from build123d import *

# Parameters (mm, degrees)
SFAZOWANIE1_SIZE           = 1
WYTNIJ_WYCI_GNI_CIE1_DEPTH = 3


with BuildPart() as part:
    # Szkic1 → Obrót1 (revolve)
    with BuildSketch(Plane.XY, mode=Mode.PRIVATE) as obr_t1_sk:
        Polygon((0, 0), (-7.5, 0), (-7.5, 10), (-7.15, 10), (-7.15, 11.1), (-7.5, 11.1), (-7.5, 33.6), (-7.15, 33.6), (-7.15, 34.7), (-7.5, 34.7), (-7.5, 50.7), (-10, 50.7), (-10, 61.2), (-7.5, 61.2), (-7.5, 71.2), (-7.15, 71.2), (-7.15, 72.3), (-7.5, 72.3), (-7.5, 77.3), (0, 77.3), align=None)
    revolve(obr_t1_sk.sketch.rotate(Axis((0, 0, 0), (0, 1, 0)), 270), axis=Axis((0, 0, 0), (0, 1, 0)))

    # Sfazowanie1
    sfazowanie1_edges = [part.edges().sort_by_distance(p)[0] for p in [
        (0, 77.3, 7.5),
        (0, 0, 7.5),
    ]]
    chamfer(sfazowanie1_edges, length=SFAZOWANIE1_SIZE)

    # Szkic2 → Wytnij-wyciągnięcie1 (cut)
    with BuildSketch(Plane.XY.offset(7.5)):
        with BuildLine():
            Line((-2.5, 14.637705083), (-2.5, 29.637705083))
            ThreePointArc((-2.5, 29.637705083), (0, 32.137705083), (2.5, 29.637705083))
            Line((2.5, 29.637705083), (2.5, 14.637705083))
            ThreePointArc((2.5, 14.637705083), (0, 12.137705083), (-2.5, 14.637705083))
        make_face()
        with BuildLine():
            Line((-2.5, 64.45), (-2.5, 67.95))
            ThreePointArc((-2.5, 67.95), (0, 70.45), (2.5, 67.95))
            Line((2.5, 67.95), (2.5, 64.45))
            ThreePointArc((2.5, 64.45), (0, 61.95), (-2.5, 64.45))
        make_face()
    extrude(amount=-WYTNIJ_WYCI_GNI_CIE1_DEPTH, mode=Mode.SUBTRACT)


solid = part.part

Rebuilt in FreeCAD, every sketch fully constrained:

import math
import FreeCAD as App
import Part
import Sketcher

V = App.Vector


def edges_at(feature, points):
    """Names of the edges that pass closest to the given points."""
    edges = feature.Shape.Edges
    near = lambda p: min(range(len(edges)), key=lambda i: edges[i].distToShape(Part.Vertex(*p))[0])
    return sorted({f"Edge{near(p) + 1}" for p in points})

doc = App.newDocument("Part")
params = doc.addObject("Spreadsheet::Sheet", "Params")
for row, (alias, value) in enumerate([
    ("sketch1_height", "5 mm"),
    ("sketch1_height2", "10 mm"),
    ("sketch1_height3", "16 mm"),
    ("sketch1_width", "7.5 mm"),
    ("sketch1_width2", "2.5 mm"),
    ("revolution_angle", "360 deg"),
    ("chamfer_size", "1 mm"),
    ("sketch2_radius", "2.5 mm"),
    ("sketch2_height", "15 mm"),
    ("sketch2_height2", "3.5 mm"),
    ("pocket1_length", "3 mm"),
], start=1):
    params.set(f"A{row}", alias)
    params.set(f"B{row}", "=" + value)
    params.setAlias(f"B{row}", alias)

body = doc.addObject("PartDesign::Body", "Body")

# Sketch on XY plane
sketch1 = body.newObject("Sketcher::SketchObject", "Sketch")
sketch1.AttachmentSupport = (doc.getObject("XY_Plane"), [""])
sketch1.MapMode = "FlatFace"
sketch1.addGeometry([
    Part.LineSegment(V(-7.5, 0, 0), V(0, 0, 0)),  # 0
    Part.LineSegment(V(0, 0, 0), V(0, 77.3, 0)),  # 1
    Part.LineSegment(V(0, 77.3, 0), V(-7.5, 77.3, 0)),  # 2
    Part.LineSegment(V(-7.5, 77.3, 0), V(-7.5, 72.3, 0)),  # 3
    Part.LineSegment(V(-7.5, 72.3, 0), V(-7.15, 72.3, 0)),  # 4
    Part.LineSegment(V(-7.15, 72.3, 0), V(-7.15, 71.2, 0)),  # 5
    Part.LineSegment(V(-7.15, 71.2, 0), V(-7.5, 71.2, 0)),  # 6
    Part.LineSegment(V(-7.5, 71.2, 0), V(-7.5, 61.2, 0)),  # 7
    Part.LineSegment(V(-7.5, 61.2, 0), V(-10, 61.2, 0)),  # 8
    Part.LineSegment(V(-10, 61.2, 0), V(-10, 50.7, 0)),  # 9
    Part.LineSegment(V(-10, 50.7, 0), V(-7.5, 50.7, 0)),  # 10
    Part.LineSegment(V(-7.5, 50.7, 0), V(-7.5, 34.7, 0)),  # 11
    Part.LineSegment(V(-7.5, 34.7, 0), V(-7.15, 34.7, 0)),  # 12
    Part.LineSegment(V(-7.15, 34.7, 0), V(-7.15, 33.6, 0)),  # 13
    Part.LineSegment(V(-7.15, 33.6, 0), V(-7.5, 33.6, 0)),  # 14
    Part.LineSegment(V(-7.5, 33.6, 0), V(-7.5, 11.1, 0)),  # 15
    Part.LineSegment(V(-7.5, 11.1, 0), V(-7.15, 11.1, 0)),  # 16
    Part.LineSegment(V(-7.15, 11.1, 0), V(-7.15, 10, 0)),  # 17
    Part.LineSegment(V(-7.15, 10, 0), V(-7.5, 10, 0)),  # 18
    Part.LineSegment(V(-7.5, 10, 0), V(-7.5, 0, 0)),  # 19
], False)
sketch1.addConstraint([
    Sketcher.Constraint("Coincident", 0, 2, 1, 1),
    Sketcher.Constraint("Coincident", 1, 2, 2, 1),
    Sketcher.Constraint("Coincident", 2, 2, 3, 1),
    Sketcher.Constraint("Coincident", 3, 2, 4, 1),
    Sketcher.Constraint("Coincident", 4, 2, 5, 1),
    Sketcher.Constraint("Coincident", 5, 2, 6, 1),
    Sketcher.Constraint("Coincident", 6, 2, 7, 1),
    Sketcher.Constraint("Coincident", 7, 2, 8, 1),
    Sketcher.Constraint("Coincident", 8, 2, 9, 1),
    Sketcher.Constraint("Coincident", 9, 2, 10, 1),
    Sketcher.Constraint("Coincident", 10, 2, 11, 1),
    Sketcher.Constraint("Coincident", 11, 2, 12, 1),
    Sketcher.Constraint("Coincident", 12, 2, 13, 1),
    Sketcher.Constraint("Coincident", 13, 2, 14, 1),
    Sketcher.Constraint("Coincident", 14, 2, 15, 1),
    Sketcher.Constraint("Coincident", 15, 2, 16, 1),
    Sketcher.Constraint("Coincident", 16, 2, 17, 1),
    Sketcher.Constraint("Coincident", 17, 2, 18, 1),
    Sketcher.Constraint("Coincident", 18, 2, 19, 1),
    Sketcher.Constraint("Coincident", 19, 2, 0, 1),
    Sketcher.Constraint("Horizontal", 0),
    Sketcher.Constraint("Vertical", 1),
    Sketcher.Constraint("Horizontal", 2),
    Sketcher.Constraint("Vertical", 3),
    Sketcher.Constraint("Horizontal", 4),
    Sketcher.Constraint("Vertical", 5),
    Sketcher.Constraint("Horizontal", 6),
    Sketcher.Constraint("Vertical", 7),
    Sketcher.Constraint("Horizontal", 8),
    Sketcher.Constraint("Vertical", 9),
    Sketcher.Constraint("Horizontal", 10),
    Sketcher.Constraint("Vertical", 11),
    Sketcher.Constraint("Horizontal", 12),
    Sketcher.Constraint("Vertical", 13),
    Sketcher.Constraint("Horizontal", 14),
    Sketcher.Constraint("Vertical", 15),
    Sketcher.Constraint("Horizontal", 16),
    Sketcher.Constraint("Vertical", 17),
    Sketcher.Constraint("Horizontal", 18),
    Sketcher.Constraint("Vertical", 19),
    Sketcher.Constraint("Coincident", 0, 2, -1, 1),
    Sketcher.Constraint("Vertical", 3, 2, 6, 2),
    Sketcher.Constraint("Vertical", 7, 2, 10, 2),
    Sketcher.Constraint("Vertical", 5, 2, 12, 2),
    Sketcher.Constraint("Vertical", 11, 2, 14, 2),
    Sketcher.Constraint("Vertical", 13, 2, 16, 2),
    Sketcher.Constraint("Vertical", 15, 2, 18, 2),
    Sketcher.Constraint("Equal", 5, 13),
    Sketcher.Constraint("Equal", 13, 17),
    Sketcher.Constraint("Equal", 7, 19),
    Sketcher.Constraint("DistanceY", 3, 2, 3, 1, 5.0),
    Sketcher.Constraint("DistanceY", 7, 2, 7, 1, 10.0),
    Sketcher.Constraint("DistanceY", 11, 2, 11, 1, 16.0),
    Sketcher.Constraint("DistanceX", 0, 1, 0, 2, 7.5),
    Sketcher.Constraint("DistanceX", 8, 2, 8, 1, 2.5),
    Sketcher.Constraint("DistanceY", 1, 1, 1, 2, 77.3),
    Sketcher.Constraint("DistanceY", 5, 2, 5, 1, 1.1),
    Sketcher.Constraint("DistanceY", 9, 2, 9, 1, 10.5),
    Sketcher.Constraint("DistanceX", 4, 1, 4, 2, 0.35),
])
sketch1.setExpression("Constraints[50]", "Params.sketch1_height")
sketch1.setExpression("Constraints[51]", "Params.sketch1_height2")
sketch1.setExpression("Constraints[52]", "Params.sketch1_height3")
sketch1.setExpression("Constraints[53]", "Params.sketch1_width")
sketch1.setExpression("Constraints[54]", "Params.sketch1_width2")
revolution = body.newObject("PartDesign::Revolution", "Revolution")
revolution.Profile = sketch1
revolution.ReferenceAxis = (sketch1, ["V_Axis"])
revolution.setExpression("Angle", "Params.revolution_angle")
doc.recompute()

chamfer = body.newObject("PartDesign::Chamfer", "Chamfer")
chamfer.Base = (revolution, edges_at(revolution, [(0, 77.3, 7.5), (0, 0, 7.5)]))
chamfer.setExpression("Size", "Params.chamfer_size")

# Sketch on XY plane
sketch2 = body.newObject("Sketcher::SketchObject", "Sketch001")
sketch2.AttachmentSupport = (doc.getObject("XY_Plane"), [""])
sketch2.MapMode = "FlatFace"
sketch2.AttachmentOffset = App.Placement(V(0, 0, 7.5), App.Rotation())
sketch2.addGeometry([
    Part.LineSegment(V(-2.5, 29.6, 0), V(-2.5, 14.6, 0)),  # 0
    Part.ArcOfCircle(Part.Circle(V(0, 14.6, 0), V(0, 0, 1), 2.5), math.radians(180), math.radians(360)),  # 1
    Part.LineSegment(V(2.5, 14.6, 0), V(2.5, 29.6, 0)),  # 2
    Part.ArcOfCircle(Part.Circle(V(0, 29.6, 0), V(0, 0, 1), 2.5), math.radians(0), math.radians(180)),  # 3
    Part.LineSegment(V(-2.5, 68, 0), V(-2.5, 64.5, 0)),  # 4
    Part.ArcOfCircle(Part.Circle(V(0, 64.5, 0), V(0, 0, 1), 2.5), math.radians(180), math.radians(360)),  # 5
    Part.LineSegment(V(2.5, 64.5, 0), V(2.5, 68, 0)),  # 6
    Part.ArcOfCircle(Part.Circle(V(0, 68, 0), V(0, 0, 1), 2.5), math.radians(0), math.radians(180)),  # 7
], False)
sketch2.addConstraint([
    Sketcher.Constraint("Tangent", 0, 2, 1, 1),
    Sketcher.Constraint("Tangent", 1, 2, 2, 1),
    Sketcher.Constraint("Tangent", 2, 2, 3, 1),
    Sketcher.Constraint("Tangent", 3, 2, 0, 1),
    Sketcher.Constraint("Tangent", 4, 2, 5, 1),
    Sketcher.Constraint("Tangent", 5, 2, 6, 1),
    Sketcher.Constraint("Tangent", 6, 2, 7, 1),
    Sketcher.Constraint("Tangent", 7, 2, 4, 1),
    Sketcher.Constraint("Vertical", 0),
    Sketcher.Constraint("Vertical", 2),
    Sketcher.Constraint("Vertical", 4),
    Sketcher.Constraint("Vertical", 6),
    Sketcher.Constraint("Equal", 3, 5),
    Sketcher.Constraint("PointOnObject", 1, 3, -2),
    Sketcher.Constraint("PointOnObject", 5, 3, -2),
    Sketcher.Constraint("Radius", 1, 2.5),
    Sketcher.Constraint("DistanceY", 0, 2, 0, 1, 15.0),
    Sketcher.Constraint("DistanceY", 4, 2, 4, 1, 3.5),
    Sketcher.Constraint("DistanceY", -1, 1, 5, 3, 64.45),
    Sketcher.Constraint("DistanceY", -1, 1, 1, 3, 14.637705),
])
sketch2.setExpression("Constraints[15]", "Params.sketch2_radius")
sketch2.setExpression("Constraints[16]", "Params.sketch2_height")
sketch2.setExpression("Constraints[17]", "Params.sketch2_height2")
pocket1 = body.newObject("PartDesign::Pocket", "Pocket")
pocket1.Profile = sketch2
pocket1.setExpression("Length", "Params.pocket1_length")

doc.recompute()
